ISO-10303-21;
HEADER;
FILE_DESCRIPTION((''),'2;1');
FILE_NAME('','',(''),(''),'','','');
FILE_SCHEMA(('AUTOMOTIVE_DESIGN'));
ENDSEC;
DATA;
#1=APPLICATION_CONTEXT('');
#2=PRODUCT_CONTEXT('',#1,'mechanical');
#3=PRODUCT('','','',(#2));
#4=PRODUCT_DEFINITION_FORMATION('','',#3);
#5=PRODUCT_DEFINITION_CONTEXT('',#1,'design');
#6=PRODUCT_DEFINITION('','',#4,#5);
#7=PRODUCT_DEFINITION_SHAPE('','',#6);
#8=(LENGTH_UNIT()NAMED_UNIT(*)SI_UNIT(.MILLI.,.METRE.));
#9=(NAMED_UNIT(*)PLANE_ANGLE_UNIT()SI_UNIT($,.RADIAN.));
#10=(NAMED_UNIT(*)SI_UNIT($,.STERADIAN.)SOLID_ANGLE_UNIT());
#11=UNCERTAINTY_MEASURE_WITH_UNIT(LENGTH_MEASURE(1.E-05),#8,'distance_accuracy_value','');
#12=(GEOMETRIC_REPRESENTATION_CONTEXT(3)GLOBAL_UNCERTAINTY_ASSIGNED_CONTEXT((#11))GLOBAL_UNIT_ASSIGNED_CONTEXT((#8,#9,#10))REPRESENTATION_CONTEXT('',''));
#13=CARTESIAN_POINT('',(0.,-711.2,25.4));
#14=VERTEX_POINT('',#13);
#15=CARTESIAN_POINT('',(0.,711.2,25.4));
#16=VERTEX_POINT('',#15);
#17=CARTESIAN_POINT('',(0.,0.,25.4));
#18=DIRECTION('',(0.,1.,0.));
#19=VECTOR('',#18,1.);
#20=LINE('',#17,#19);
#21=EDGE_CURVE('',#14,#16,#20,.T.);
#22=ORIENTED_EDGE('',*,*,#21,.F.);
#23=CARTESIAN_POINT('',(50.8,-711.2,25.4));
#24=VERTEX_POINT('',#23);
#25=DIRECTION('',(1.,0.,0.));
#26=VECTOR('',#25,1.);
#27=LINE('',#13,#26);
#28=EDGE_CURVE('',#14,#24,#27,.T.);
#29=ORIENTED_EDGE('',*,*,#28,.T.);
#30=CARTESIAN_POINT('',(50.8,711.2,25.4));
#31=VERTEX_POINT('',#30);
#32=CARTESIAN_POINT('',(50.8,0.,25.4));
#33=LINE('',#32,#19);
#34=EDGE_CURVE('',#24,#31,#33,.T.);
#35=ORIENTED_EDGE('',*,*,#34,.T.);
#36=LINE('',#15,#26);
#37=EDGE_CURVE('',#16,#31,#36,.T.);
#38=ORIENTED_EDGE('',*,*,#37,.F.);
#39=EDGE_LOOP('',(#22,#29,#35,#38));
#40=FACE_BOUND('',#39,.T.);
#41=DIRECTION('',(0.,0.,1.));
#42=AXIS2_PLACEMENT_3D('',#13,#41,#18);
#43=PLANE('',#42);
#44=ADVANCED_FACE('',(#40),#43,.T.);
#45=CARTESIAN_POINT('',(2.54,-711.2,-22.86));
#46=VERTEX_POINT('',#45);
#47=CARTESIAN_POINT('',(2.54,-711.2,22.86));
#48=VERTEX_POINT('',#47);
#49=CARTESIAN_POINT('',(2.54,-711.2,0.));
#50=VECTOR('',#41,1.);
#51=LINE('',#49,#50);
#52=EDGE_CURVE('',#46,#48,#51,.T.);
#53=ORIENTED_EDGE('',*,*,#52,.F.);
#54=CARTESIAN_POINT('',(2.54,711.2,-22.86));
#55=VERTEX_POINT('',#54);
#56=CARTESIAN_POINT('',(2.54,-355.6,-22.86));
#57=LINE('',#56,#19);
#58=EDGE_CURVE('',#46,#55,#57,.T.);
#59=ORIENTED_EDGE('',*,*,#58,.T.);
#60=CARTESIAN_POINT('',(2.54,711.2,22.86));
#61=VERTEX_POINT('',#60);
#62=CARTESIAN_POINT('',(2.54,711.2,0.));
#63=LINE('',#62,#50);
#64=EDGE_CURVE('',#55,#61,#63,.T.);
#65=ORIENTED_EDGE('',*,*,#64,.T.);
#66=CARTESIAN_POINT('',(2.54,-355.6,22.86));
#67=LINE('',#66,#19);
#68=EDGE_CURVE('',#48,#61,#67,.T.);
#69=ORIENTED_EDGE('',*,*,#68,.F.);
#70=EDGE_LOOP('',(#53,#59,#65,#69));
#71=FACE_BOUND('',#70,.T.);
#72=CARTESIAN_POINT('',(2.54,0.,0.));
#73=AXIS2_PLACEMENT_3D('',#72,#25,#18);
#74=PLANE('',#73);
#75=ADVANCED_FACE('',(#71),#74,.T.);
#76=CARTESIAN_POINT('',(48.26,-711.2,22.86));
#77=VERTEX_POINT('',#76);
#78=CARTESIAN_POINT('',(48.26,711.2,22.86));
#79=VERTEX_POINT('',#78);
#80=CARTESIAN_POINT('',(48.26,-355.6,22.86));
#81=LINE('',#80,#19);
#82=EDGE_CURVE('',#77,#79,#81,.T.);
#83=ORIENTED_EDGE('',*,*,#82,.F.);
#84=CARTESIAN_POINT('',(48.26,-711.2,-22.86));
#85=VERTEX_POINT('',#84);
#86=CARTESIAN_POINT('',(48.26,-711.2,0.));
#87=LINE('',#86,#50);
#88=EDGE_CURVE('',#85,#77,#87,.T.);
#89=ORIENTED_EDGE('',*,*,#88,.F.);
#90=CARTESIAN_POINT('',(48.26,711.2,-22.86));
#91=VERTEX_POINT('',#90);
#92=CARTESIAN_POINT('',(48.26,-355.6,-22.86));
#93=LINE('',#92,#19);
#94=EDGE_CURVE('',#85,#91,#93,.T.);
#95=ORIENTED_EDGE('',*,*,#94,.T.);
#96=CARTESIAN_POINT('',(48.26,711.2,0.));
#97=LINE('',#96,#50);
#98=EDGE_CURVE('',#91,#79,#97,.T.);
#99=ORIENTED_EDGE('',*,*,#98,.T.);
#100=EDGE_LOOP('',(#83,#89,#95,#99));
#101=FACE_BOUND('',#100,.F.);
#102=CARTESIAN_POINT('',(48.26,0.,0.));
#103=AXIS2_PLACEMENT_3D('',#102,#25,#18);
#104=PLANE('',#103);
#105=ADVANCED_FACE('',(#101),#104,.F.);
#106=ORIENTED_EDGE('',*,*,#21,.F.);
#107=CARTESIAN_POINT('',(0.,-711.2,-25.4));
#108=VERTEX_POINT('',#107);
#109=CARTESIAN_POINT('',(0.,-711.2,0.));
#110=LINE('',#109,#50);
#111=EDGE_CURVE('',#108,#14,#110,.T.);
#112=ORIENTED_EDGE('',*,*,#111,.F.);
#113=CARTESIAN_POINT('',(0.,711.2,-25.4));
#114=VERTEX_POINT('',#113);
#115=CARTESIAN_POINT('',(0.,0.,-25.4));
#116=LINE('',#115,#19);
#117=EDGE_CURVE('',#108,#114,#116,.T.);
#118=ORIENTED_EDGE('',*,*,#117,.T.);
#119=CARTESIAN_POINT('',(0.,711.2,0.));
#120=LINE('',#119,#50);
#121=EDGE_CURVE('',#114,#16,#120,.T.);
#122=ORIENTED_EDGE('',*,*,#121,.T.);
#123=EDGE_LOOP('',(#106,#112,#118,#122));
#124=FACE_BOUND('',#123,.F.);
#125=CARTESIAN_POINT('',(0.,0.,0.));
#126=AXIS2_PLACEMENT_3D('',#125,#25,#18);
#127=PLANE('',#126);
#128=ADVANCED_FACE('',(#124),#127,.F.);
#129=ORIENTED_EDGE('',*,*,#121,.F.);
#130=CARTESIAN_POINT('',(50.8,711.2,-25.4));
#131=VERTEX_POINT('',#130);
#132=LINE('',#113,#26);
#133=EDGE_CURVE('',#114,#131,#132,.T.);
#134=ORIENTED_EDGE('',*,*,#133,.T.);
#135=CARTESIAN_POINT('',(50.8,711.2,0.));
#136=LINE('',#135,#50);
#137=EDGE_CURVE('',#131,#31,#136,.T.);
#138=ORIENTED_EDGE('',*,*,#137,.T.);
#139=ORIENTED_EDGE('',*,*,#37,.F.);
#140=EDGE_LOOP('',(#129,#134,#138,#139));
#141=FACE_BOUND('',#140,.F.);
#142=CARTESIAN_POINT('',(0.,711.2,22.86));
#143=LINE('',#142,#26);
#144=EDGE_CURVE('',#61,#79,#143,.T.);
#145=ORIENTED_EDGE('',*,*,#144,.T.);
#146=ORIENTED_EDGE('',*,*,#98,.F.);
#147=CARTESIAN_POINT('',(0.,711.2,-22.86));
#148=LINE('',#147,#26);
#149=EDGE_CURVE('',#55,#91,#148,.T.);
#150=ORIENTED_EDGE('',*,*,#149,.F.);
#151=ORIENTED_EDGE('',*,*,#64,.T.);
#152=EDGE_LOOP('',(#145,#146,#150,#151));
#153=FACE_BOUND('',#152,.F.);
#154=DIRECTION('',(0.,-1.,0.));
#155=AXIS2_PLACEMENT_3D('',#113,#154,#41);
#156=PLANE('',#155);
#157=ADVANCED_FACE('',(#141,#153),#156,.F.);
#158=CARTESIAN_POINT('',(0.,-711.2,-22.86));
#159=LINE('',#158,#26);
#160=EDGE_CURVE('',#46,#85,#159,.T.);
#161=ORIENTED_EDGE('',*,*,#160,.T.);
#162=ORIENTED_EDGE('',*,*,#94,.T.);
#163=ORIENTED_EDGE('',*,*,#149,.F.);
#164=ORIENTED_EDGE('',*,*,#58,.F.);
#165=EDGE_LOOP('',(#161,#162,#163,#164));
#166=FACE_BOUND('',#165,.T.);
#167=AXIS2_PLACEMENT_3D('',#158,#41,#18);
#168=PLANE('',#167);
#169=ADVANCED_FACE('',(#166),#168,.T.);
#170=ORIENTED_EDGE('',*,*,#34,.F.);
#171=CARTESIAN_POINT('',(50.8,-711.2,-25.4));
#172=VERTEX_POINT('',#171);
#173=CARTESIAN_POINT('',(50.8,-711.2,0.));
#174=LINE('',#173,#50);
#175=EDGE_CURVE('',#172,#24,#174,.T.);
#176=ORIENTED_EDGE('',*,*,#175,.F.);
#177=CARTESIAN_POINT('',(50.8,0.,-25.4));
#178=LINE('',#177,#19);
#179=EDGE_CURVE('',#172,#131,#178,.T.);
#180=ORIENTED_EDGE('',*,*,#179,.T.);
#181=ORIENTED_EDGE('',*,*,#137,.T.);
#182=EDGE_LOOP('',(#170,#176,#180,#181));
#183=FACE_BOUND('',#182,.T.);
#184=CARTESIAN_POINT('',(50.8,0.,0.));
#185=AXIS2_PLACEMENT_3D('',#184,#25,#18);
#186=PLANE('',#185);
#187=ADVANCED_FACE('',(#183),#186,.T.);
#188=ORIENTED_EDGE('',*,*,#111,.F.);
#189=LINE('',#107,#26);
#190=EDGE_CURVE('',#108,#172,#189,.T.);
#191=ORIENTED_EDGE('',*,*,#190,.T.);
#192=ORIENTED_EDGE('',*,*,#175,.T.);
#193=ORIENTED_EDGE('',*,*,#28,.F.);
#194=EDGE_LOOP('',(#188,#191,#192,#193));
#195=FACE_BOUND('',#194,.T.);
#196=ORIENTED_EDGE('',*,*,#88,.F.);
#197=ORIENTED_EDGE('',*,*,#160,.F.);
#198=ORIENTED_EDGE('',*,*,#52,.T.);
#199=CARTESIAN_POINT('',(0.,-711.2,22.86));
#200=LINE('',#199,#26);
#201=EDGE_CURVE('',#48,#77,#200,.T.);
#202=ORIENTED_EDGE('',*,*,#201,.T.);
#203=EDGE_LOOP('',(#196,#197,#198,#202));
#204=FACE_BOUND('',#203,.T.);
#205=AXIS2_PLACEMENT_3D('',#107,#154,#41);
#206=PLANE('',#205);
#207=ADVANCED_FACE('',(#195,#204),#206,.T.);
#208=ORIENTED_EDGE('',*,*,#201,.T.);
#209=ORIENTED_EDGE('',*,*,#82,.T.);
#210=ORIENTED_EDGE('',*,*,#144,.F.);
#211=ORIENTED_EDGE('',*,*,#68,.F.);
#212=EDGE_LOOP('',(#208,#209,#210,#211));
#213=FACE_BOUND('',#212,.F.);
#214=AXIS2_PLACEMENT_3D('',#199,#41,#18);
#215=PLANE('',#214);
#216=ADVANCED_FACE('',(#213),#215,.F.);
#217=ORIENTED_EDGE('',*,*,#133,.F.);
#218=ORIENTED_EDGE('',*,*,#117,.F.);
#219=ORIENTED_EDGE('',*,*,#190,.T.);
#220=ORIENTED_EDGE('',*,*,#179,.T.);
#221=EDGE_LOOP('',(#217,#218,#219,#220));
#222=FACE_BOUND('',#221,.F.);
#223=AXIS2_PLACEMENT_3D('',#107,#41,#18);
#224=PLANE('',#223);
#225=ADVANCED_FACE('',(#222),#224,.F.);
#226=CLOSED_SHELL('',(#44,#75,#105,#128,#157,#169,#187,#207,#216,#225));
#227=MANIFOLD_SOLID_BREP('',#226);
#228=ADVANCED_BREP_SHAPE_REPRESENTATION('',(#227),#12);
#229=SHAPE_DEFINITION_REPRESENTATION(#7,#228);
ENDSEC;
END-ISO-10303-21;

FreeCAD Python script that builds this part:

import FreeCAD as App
import Part
import Sketcher
from FreeCAD import Vector
Q = App.Units.Quantity


def faces_at(feature, points):
    """Names of the faces that lie closest to the given points."""
    faces = feature.Shape.Faces
    near = lambda p: min(range(len(faces)), key=lambda i: faces[i].distToShape(Part.Vertex(*p))[0])
    return sorted({f"Face{near(p) + 1}" for p in points})

doc = App.newDocument("Part")
params = doc.addObject("Spreadsheet::Sheet", "Params")
for row, (alias, value) in enumerate([
    ("sketch1_width", "56 in"),
    ("sketch1_height", "2 in"),
    ("pad1_length", "2 in"),
    ("thickness_wall", "0.1 in"),
], start=1):
    params.set(f"A{row}", alias)
    params.set(f"B{row}", "=" + value)
    params.setAlias(f"B{row}", alias)

body = doc.addObject("PartDesign::Body", "Body")

sketch1 = doc.addObject("Sketcher::SketchObject", "Sketch")
body.addObject(sketch1)
sketch1.AttachmentSupport = (doc.YZ_Plane, [""])
sketch1.MapMode = "FlatFace"
sketch1.addGeometry([
    Part.LineSegment(Vector(-711, 25, 0), Vector(-711, -25, 0)),
    Part.LineSegment(Vector(-711, -25, 0), Vector(711, -25, 0)),
    Part.LineSegment(Vector(711, -25, 0), Vector(711, 25, 0)),
    Part.LineSegment(Vector(711, 25, 0), Vector(-711, 25, 0)),
], False)
sketch1.addConstraint([
    Sketcher.Constraint("Coincident", 0, 2, 1, 1),
    Sketcher.Constraint("Coincident", 1, 2, 2, 1),
    Sketcher.Constraint("Coincident", 2, 2, 3, 1),
    Sketcher.Constraint("Coincident", 3, 2, 0, 1),
    Sketcher.Constraint("Vertical", 0),
    Sketcher.Constraint("Horizontal", 1),
    Sketcher.Constraint("Vertical", 2),
    Sketcher.Constraint("Horizontal", 3),
    Sketcher.Constraint("Symmetric", 0, 2, 2, 2, -1, 1),
    Sketcher.Constraint("DistanceX", 1, 1, 1, 2, Q("56 in")),
    Sketcher.Constraint("DistanceY", 0, 2, 0, 1, Q("2 in")),
])
sketch1.setExpression("Constraints[9]", "Params.sketch1_width")
sketch1.setExpression("Constraints[10]", "Params.sketch1_height")
pad1 = doc.addObject("PartDesign::Pad", "Pad")
body.addObject(pad1)
pad1.Profile = sketch1
pad1.setExpression("Length", "Params.pad1_length")
doc.recompute()

thickness = doc.addObject("PartDesign::Thickness", "Thickness")
body.addObject(thickness)
thickness.Base = (pad1, faces_at(pad1, [(25.4, 711.2, 0), (25.4, -711.2, 0)]))
thickness.setExpression("Value", "Params.thickness_wall")
thickness.Reversed = True
thickness.Join = "Arc"

doc.recompute()
